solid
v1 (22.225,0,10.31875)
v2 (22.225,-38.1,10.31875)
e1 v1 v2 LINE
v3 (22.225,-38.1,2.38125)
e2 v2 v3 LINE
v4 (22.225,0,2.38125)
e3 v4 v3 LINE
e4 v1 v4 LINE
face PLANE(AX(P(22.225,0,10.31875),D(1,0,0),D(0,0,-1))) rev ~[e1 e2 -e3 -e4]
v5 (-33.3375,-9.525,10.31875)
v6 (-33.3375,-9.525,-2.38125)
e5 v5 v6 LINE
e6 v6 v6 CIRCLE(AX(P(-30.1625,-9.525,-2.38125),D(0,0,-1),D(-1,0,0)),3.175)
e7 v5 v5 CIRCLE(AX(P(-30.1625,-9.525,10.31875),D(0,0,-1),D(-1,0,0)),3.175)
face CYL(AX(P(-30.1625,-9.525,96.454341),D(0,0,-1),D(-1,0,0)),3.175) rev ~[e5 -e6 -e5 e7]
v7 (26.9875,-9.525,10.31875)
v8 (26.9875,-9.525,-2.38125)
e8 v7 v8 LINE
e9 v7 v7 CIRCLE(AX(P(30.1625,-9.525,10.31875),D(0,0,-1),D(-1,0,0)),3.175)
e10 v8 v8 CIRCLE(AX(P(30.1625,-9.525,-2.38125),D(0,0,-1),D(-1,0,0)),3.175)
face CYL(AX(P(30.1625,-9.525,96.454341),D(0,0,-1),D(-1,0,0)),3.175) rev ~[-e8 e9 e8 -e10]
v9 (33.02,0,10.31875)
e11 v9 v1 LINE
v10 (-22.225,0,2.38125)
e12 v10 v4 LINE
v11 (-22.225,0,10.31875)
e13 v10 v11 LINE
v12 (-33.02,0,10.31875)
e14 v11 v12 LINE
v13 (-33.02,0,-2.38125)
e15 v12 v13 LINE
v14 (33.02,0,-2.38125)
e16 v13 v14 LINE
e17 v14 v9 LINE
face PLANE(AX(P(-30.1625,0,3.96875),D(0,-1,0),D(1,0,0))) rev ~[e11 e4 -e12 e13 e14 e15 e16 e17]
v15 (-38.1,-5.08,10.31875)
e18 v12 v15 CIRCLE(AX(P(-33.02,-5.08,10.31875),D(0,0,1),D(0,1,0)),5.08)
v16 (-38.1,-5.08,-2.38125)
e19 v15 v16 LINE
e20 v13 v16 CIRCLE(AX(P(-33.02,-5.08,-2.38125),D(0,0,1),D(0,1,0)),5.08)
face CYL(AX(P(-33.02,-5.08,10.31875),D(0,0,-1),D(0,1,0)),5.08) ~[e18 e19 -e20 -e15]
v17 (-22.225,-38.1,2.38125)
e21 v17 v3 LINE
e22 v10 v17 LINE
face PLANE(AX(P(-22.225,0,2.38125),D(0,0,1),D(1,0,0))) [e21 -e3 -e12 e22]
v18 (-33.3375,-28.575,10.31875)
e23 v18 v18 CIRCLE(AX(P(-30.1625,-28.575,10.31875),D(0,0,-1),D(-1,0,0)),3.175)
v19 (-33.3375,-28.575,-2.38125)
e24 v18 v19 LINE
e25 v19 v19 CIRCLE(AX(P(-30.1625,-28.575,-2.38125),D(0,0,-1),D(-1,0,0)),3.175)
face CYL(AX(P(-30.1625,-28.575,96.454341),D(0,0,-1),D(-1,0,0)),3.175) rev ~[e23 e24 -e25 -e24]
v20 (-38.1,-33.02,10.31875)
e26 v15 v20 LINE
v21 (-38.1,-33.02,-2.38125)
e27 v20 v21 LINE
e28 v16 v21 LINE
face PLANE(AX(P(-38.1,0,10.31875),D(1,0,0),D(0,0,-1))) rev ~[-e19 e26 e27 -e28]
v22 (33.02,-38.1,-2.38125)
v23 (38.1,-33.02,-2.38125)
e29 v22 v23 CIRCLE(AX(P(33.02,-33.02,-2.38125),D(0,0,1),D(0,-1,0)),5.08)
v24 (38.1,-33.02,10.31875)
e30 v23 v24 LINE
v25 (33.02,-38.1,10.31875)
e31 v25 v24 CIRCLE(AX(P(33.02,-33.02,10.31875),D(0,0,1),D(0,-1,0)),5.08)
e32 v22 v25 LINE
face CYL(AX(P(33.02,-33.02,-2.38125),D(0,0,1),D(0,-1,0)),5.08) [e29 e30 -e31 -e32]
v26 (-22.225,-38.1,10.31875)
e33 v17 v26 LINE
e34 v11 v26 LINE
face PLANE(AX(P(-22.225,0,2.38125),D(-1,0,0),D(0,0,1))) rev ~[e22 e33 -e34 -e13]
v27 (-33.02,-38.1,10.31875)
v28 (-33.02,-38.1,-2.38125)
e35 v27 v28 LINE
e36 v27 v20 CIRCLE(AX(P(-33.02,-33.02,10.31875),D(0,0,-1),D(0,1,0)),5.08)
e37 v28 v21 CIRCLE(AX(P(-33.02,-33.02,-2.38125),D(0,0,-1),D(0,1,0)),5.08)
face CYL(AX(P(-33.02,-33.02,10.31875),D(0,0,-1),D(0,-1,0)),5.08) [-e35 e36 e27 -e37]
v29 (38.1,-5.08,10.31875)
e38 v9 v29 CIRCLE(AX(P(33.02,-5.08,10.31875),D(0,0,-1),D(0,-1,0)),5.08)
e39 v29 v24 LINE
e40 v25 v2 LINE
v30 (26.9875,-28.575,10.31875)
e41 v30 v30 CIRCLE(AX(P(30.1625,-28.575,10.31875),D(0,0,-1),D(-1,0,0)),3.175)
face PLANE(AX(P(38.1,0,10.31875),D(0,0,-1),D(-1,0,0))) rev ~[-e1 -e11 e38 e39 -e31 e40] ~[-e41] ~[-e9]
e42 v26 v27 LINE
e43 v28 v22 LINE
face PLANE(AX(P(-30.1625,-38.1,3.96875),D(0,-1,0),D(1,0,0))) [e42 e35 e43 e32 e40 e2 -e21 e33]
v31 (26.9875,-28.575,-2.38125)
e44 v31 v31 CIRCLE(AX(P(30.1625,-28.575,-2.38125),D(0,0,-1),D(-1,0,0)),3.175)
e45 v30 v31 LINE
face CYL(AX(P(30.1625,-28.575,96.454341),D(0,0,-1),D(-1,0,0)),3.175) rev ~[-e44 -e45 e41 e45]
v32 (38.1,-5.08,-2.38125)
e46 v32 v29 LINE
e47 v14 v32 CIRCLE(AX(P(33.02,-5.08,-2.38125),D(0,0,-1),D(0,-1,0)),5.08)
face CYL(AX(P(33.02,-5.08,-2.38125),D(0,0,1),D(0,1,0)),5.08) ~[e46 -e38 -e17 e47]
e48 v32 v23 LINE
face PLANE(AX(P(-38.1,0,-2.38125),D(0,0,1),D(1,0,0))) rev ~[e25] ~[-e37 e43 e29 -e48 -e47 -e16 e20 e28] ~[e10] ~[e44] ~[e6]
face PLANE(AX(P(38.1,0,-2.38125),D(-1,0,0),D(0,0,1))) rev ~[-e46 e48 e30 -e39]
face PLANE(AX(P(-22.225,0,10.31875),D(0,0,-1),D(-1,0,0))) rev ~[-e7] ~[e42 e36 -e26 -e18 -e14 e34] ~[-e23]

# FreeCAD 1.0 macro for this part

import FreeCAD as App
import Part
import Sketcher

V = App.Vector
Q = App.Units.Quantity


def edges_at(feature, points):
    """Names of the edges that pass closest to the given points."""
    edges = feature.Shape.Edges
    near = lambda p: min(range(len(edges)), key=lambda i: edges[i].distToShape(Part.Vertex(*p))[0])
    return sorted({f"Edge{near(p) + 1}" for p in points})

doc = App.newDocument("Part")
params = doc.addObject("Spreadsheet::Sheet", "Params")
for row, (alias, value) in enumerate([
    ("sketch1_width", "3 in"),
    ("sketch1_height", "0.5 in"),
    ("sketch1_width2", "1.75 in"),
    ("sketch1_height2", "0.3125 in"),
    ("pad1_length", "1.5 in"),
    ("sketch2_diameter", "0.25 in"),
    ("hole_diameter", "0.25 in"),
    ("fillet_radius", "0.2 in"),
], start=1):
    params.set(f"A{row}", alias)
    params.set(f"B{row}", "=" + value)
    params.setAlias(f"B{row}", alias)

body = doc.addObject("PartDesign::Body", "Body")

sketch1 = body.newObject("Sketcher::SketchObject", "Sketch")
sketch1.AttachmentSupport = (doc.getObject("XZ_Plane"), [""])
sketch1.MapMode = "FlatFace"
sketch1.addGeometry(Part.LineSegment(V(-22.225, 2.38125, 0), V(-22.225, 10.31875, 0)), False)
sketch1.addGeometry(Part.LineSegment(V(-22.225, 10.31875, 0), V(-38.1, 10.31875, 0)), False)
sketch1.addGeometry(Part.LineSegment(V(-38.1, 10.31875, 0), V(-38.1, -2.38125, 0)), False)
sketch1.addGeometry(Part.LineSegment(V(-38.1, -2.38125, 0), V(38.1, -2.38125, 0)), False)
sketch1.addGeometry(Part.LineSegment(V(38.1, -2.38125, 0), V(38.1, 10.31875, 0)), False)
sketch1.addGeometry(Part.LineSegment(V(38.1, 10.31875, 0), V(22.225, 10.31875, 0)), False)
sketch1.addGeometry(Part.LineSegment(V(22.225, 10.31875, 0), V(22.225, 2.38125, 0)), False)
sketch1.addGeometry(Part.LineSegment(V(22.225, 2.38125, 0), V(-22.225, 2.38125, 0)), False)
sketch1.addConstraint(Sketcher.Constraint("Coincident", 0, 2, 1, 1))
sketch1.addConstraint(Sketcher.Constraint("Coincident", 1, 2, 2, 1))
sketch1.addConstraint(Sketcher.Constraint("Coincident", 2, 2, 3, 1))
sketch1.addConstraint(Sketcher.Constraint("Coincident", 3, 2, 4, 1))
sketch1.addConstraint(Sketcher.Constraint("Coincident", 4, 2, 5, 1))
sketch1.addConstraint(Sketcher.Constraint("Coincident", 5, 2, 6, 1))
sketch1.addConstraint(Sketcher.Constraint("Coincident", 6, 2, 7, 1))
sketch1.addConstraint(Sketcher.Constraint("Coincident", 7, 2, 0, 1))
sketch1.addConstraint(Sketcher.Constraint("Vertical", 0))
sketch1.addConstraint(Sketcher.Constraint("Horizontal", 1))
sketch1.addConstraint(Sketcher.Constraint("Vertical", 2))
sketch1.addConstraint(Sketcher.Constraint("Horizontal", 3))
sketch1.addConstraint(Sketcher.Constraint("Vertical", 4))
sketch1.addConstraint(Sketcher.Constraint("Horizontal", 5))
sketch1.addConstraint(Sketcher.Constraint("Vertical", 6))
sketch1.addConstraint(Sketcher.Constraint("Horizontal", 7))
sketch1.addConstraint(Sketcher.Constraint("Symmetric", 1, 2, 4, 2, -2))
sketch1.addConstraint(Sketcher.Constraint("Equal", 1, 5))
sketch1.addConstraint(Sketcher.Constraint("DistanceX", 3, 1, 3, 2, Q("3 in")))
sketch1.addConstraint(Sketcher.Constraint("DistanceY", 2, 2, 2, 1, Q("0.5 in")))
sketch1.addConstraint(Sketcher.Constraint("DistanceX", 7, 2, 7, 1, Q("1.75 in")))
sketch1.addConstraint(Sketcher.Constraint("DistanceY", 0, 1, 0, 2, Q("0.3125 in")))
sketch1.addConstraint(Sketcher.Constraint("DistanceY", -1, 1, 0, 2, Q("0.40625 in")))
sketch1.setExpression("Constraints[18]", "Params.sketch1_width")
sketch1.setExpression("Constraints[19]", "Params.sketch1_height")
sketch1.setExpression("Constraints[20]", "Params.sketch1_width2")
sketch1.setExpression("Constraints[21]", "Params.sketch1_height2")
pad1 = body.newObject("PartDesign::Pad", "Pad")
pad1.Profile = sketch1
pad1.setExpression("Length", "Params.pad1_length")

sketch2 = body.newObject("Sketcher::SketchObject", "Sketch001")
sketch2.AttachmentSupport = (doc.getObject("XY_Plane"), [""])
sketch2.MapMode = "FlatFace"
sketch2.AttachmentOffset = App.Placement(V(0, 0, 0.40625 * 25.4), App.Rotation())
sketch2.addGeometry(Part.Circle(V(-30.1625, -9.525, 0), V(0, 0, 1), 3.175), False)
sketch2.addGeometry(Part.Circle(V(-30.1625, -28.575, 0), V(0, 0, 1), 3.175), False)
sketch2.addGeometry(Part.Circle(V(30.1625, -9.525, 0), V(0, 0, 1), 3.175), False)
sketch2.addGeometry(Part.Circle(V(30.1625, -28.575, 0), V(0, 0, 1), 3.175), False)
sketch2.addConstraint(Sketcher.Constraint("Equal", 0, 1))
sketch2.addConstraint(Sketcher.Constraint("Equal", 1, 2))
sketch2.addConstraint(Sketcher.Constraint("Equal", 2, 3))
sketch2.addConstraint(Sketcher.Constraint("Symmetric", 0, 3, 2, 3, -2))
sketch2.addConstraint(Sketcher.Constraint("Symmetric", 1, 3, 3, 3, -2))
sketch2.addConstraint(Sketcher.Constraint("Vertical", 0, 3, 1, 3))
sketch2.addConstraint(Sketcher.Constraint("Diameter", 0, Q("0.25 in")))
sketch2.addConstraint(Sketcher.Constraint("DistanceY", 1, 3, 0, 3, Q("0.75 in")))
sketch2.addConstraint(Sketcher.Constraint("DistanceX", 0, 3, -1, 1, Q("1.1875 in")))
sketch2.addConstraint(Sketcher.Constraint("DistanceY", 0, 3, -1, 1, Q("0.375 in")))
sketch2.setExpression("Constraints[6]", "Params.sketch2_diameter")
doc.recompute()
hole = body.newObject("PartDesign::Hole", "Hole")
hole.Profile = sketch2
hole.ThreadType = "None"
hole.setExpression("Diameter", "Params.hole_diameter")
hole.DepthType = "ThroughAll"
doc.recompute()

fillet = body.newObject("PartDesign::Fillet", "Fillet")
fillet.Base = (hole, edges_at(hole, [
    (38.1, 0, 3.969),
    (38.1, -38.1, 3.969),
    (-38.1, 0, 3.969),
    (-38.1, -38.1, 3.969),
]))
fillet.setExpression("Radius", "Params.fillet_radius")

doc.recompute()
